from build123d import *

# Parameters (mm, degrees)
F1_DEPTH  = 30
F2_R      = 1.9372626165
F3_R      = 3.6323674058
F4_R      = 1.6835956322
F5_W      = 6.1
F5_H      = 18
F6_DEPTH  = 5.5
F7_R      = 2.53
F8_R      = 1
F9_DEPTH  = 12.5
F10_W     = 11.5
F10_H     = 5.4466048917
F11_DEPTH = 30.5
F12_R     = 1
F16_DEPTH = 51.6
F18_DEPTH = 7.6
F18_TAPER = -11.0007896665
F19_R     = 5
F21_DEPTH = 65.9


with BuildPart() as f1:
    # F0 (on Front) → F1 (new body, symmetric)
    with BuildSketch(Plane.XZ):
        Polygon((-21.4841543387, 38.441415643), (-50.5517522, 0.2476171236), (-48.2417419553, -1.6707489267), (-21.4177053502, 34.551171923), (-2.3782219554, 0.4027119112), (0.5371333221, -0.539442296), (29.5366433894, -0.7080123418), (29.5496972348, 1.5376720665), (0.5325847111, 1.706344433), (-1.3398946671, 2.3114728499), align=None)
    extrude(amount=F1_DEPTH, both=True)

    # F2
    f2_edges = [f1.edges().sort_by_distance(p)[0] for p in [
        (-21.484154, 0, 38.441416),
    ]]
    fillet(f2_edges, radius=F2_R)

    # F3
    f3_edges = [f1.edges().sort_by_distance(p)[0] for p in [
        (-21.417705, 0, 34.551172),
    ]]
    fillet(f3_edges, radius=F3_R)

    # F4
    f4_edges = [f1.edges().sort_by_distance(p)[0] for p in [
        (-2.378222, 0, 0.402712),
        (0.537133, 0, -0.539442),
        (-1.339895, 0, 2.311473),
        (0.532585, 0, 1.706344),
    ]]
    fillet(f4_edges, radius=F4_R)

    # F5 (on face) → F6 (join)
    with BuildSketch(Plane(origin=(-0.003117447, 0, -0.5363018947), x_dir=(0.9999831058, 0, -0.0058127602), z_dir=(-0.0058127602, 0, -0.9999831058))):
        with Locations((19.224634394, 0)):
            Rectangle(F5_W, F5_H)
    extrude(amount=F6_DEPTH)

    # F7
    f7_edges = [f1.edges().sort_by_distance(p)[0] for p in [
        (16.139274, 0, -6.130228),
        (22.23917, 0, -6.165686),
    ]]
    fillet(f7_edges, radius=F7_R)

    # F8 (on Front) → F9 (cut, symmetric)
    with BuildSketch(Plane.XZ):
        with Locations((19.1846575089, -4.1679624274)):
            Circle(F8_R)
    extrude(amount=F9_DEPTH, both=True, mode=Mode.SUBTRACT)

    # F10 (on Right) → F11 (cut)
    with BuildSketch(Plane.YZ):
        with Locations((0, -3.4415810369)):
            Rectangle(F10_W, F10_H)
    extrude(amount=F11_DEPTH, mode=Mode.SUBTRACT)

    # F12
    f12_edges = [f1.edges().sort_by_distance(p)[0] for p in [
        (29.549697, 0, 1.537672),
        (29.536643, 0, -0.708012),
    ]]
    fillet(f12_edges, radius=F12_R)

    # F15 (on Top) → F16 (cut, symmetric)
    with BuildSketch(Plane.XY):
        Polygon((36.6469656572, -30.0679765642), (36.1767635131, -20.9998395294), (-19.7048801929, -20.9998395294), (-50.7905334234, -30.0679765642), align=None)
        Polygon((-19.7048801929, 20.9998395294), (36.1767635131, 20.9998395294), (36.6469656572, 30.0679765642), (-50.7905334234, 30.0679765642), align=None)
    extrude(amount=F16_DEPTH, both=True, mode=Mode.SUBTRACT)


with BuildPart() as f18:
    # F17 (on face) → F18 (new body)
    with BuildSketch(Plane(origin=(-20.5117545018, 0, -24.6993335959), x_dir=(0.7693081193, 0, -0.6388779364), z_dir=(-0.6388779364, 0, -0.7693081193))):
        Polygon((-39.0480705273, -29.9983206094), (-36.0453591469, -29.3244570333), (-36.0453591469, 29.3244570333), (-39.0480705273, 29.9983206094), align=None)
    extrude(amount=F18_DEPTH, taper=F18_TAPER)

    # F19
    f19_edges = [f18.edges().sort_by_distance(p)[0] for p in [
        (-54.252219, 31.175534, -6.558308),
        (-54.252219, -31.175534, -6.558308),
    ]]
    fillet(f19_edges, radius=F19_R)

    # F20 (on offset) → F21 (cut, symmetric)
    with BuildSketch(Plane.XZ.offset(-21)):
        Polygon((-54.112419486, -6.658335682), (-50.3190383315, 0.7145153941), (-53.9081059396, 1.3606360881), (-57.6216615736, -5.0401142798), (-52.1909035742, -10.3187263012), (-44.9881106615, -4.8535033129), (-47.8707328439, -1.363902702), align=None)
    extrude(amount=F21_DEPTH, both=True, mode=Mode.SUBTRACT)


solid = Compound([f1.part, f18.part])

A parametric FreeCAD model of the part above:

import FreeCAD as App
import Part
import Sketcher

V = App.Vector
Q = App.Units.Quantity


def edges_at(feature, points):
    """Names of the edges that pass closest to the given points."""
    edges = feature.Shape.Edges
    near = lambda p: min(range(len(edges)), key=lambda i: edges[i].distToShape(Part.Vertex(*p))[0])
    return sorted({f"Edge{near(p) + 1}" for p in points})

doc = App.newDocument("Part")
body = doc.addObject("PartDesign::Body", "Body")

sketch1 = doc.addObject("Sketcher::SketchObject", "Sketch")
body.addObject(sketch1)
sketch1.AttachmentSupport = (doc.XZ_Plane, [""])
sketch1.MapMode = "FlatFace"
sketch1.addGeometry(Part.LineSegment(V(-21.5, 38.4, 0), V(-50.6, 0.2, 0)), False)
sketch1.addGeometry(Part.LineSegment(V(-50.6, 0.2, 0), V(-48.2, -1.7, 0)), False)
sketch1.addGeometry(Part.LineSegment(V(-48.2, -1.7, 0), V(-21.4, 34.6, 0)), False)
sketch1.addGeometry(Part.LineSegment(V(-21.4, 34.6, 0), V(-2.4, 0.4, 0)), False)
sketch1.addGeometry(Part.LineSegment(V(-2.4, 0.4, 0), V(0.5, -0.5, 0)), False)
sketch1.addGeometry(Part.LineSegment(V(0.5, -0.5, 0), V(29.5, -0.7, 0)), False)
sketch1.addGeometry(Part.LineSegment(V(29.5, -0.7, 0), V(29.5, 1.5, 0)), False)
sketch1.addGeometry(Part.LineSegment(V(29.5, 1.5, 0), V(0.5, 1.7, 0)), False)
sketch1.addGeometry(Part.LineSegment(V(0.5, 1.7, 0), V(-1.3, 2.3, 0)), False)
sketch1.addGeometry(Part.LineSegment(V(-1.3, 2.3, 0), V(-21.5, 38.4, 0)), False)
sketch1.addConstraint(Sketcher.Constraint("Coincident", 0, 2, 1, 1))
sketch1.addConstraint(Sketcher.Constraint("Coincident", 1, 2, 2, 1))
sketch1.addConstraint(Sketcher.Constraint("Coincident", 2, 2, 3, 1))
sketch1.addConstraint(Sketcher.Constraint("Coincident", 3, 2, 4, 1))
sketch1.addConstraint(Sketcher.Constraint("Coincident", 4, 2, 5, 1))
sketch1.addConstraint(Sketcher.Constraint("Coincident", 5, 2, 6, 1))
sketch1.addConstraint(Sketcher.Constraint("Coincident", 6, 2, 7, 1))
sketch1.addConstraint(Sketcher.Constraint("Coincident", 7, 2, 8, 1))
sketch1.addConstraint(Sketcher.Constraint("Coincident", 8, 2, 9, 1))
sketch1.addConstraint(Sketcher.Constraint("Coincident", 9, 2, 0, 1))
sketch1.addConstraint(Sketcher.Constraint("Perpendicular", 5, 6))
sketch1.addConstraint(Sketcher.Constraint("Perpendicular", 6, 7))
sketch1.addConstraint(Sketcher.Constraint("Parallel", 4, 8))
sketch1.addConstraint(Sketcher.Constraint("Parallel", 3, 9))
sketch1.addConstraint(Sketcher.Constraint("Distance", 5, Q("29 mm")))
sketch1.addConstraint(Sketcher.Constraint("DistanceY", 6, 2, 2, 2, Q("33.0135 mm")))
sketch1.addConstraint(Sketcher.Constraint("DistanceY", 6, 2, 8, 2, Q("0.773801 mm")))
sketch1.addConstraint(Sketcher.Constraint("Distance", 1, Q("3.002711 mm")))
sketch1.addConstraint(Sketcher.Constraint("Distance", 2, Q("45.072791 mm")))
sketch1.addConstraint(Sketcher.Constraint("Distance", 3, Q("39.097561 mm")))
sketch1.addConstraint(Sketcher.Constraint("Distance", 8, Q("1.967831 mm")))
sketch1.addConstraint(Sketcher.Constraint("DistanceX", 1, 2, -1, 1, Q("48.241742 mm")))
sketch1.addConstraint(Sketcher.Constraint("DistanceY", 1, 2, -1, 1, Q("1.670749 mm")))
sketch1.addConstraint(Sketcher.Constraint("DistanceY", -1, 1, 2, 2, Q("34.551172 mm")))
sketch1.addConstraint(Sketcher.Constraint("DistanceX", 3, 2, -1, 1, Q("2.378222 mm")))
sketch1.addConstraint(Sketcher.Constraint("DistanceX", 0, 2, 1, 2, Q("2.31001 mm")))
sketch1.addConstraint(Sketcher.Constraint("DistanceX", 2, 2, 4, 2, Q("21.954839 mm")))
sketch1.addConstraint(Sketcher.Constraint("DistanceY", 4, 2, 0, 2, Q("0.787059 mm")))
sketch1.addConstraint(Sketcher.Constraint("DistanceX", 7, 2, 4, 2, Q("0.004549 mm")))
sketch1.addConstraint(Sketcher.Constraint("DistanceX", 9, 2, 2, 2, Q("0.066449 mm")))
pad1 = doc.addObject("PartDesign::Pad", "Pad")
body.addObject(pad1)
pad1.Profile = sketch1
pad1.Length = 60
pad1.Midplane = True
doc.recompute()

fillet = doc.addObject("PartDesign::Fillet", "Fillet")
body.addObject(fillet)
fillet.Base = (pad1, edges_at(pad1, [(-21.484, 0, 38.441)]))
fillet.Radius = 1.937263
doc.recompute()

fillet2 = doc.addObject("PartDesign::Fillet", "Fillet001")
body.addObject(fillet2)
fillet2.Base = (fillet, edges_at(fillet, [(-21.418, 0, 34.551)]))
fillet2.Radius = 3.632367
doc.recompute()

fillet3 = doc.addObject("PartDesign::Fillet", "Fillet002")
body.addObject(fillet3)
fillet3.Base = (fillet2, edges_at(fillet2, [
    (-2.378, 0, 0.403),
    (0.537, 0, -0.539),
    (-1.34, 0, 2.311),
    (0.533, 0, 1.706),
]))
fillet3.Radius = 1.683596

sketch2 = doc.addObject("Sketcher::SketchObject", "Sketch001")
body.addObject(sketch2)
sketch2.Placement = App.Placement(V(-0.003117, 0, -0.536302), App.Rotation(V(0.999983106, 0, -0.00581276), V(0, -1, 0), V(-0.00581276, 0, -0.999983106), "ZXY"))
sketch2.addGeometry(Part.LineSegment(V(16, 9, 0), V(16, -9, 0)), False)
sketch2.addGeometry(Part.LineSegment(V(16, -9, 0), V(22, -9, 0)), False)
sketch2.addGeometry(Part.LineSegment(V(22, -9, 0), V(22, 9, 0)), False)
sketch2.addGeometry(Part.LineSegment(V(22, 9, 0), V(16, 9, 0)), False)
sketch2.addConstraint(Sketcher.Constraint("Coincident", 0, 2, 1, 1))
sketch2.addConstraint(Sketcher.Constraint("Coincident", 1, 2, 2, 1))
sketch2.addConstraint(Sketcher.Constraint("Coincident", 2, 2, 3, 1))
sketch2.addConstraint(Sketcher.Constraint("Coincident", 3, 2, 0, 1))
sketch2.addConstraint(Sketcher.Constraint("Vertical", 0))
sketch2.addConstraint(Sketcher.Constraint("Horizontal", 1))
sketch2.addConstraint(Sketcher.Constraint("Vertical", 2))
sketch2.addConstraint(Sketcher.Constraint("Horizontal", 3))
sketch2.addConstraint(Sketcher.Constraint("DistanceY", 0, 2, 0, 1, Q("18 mm")))
sketch2.addConstraint(Sketcher.Constraint("DistanceX", 1, 1, 1, 2, Q("6.1 mm")))
sketch2.addConstraint(Sketcher.Constraint("DistanceY", 0, 2, -1, 1, Q("9 mm")))
sketch2.addConstraint(Sketcher.Constraint("DistanceX", -1, 1, 0, 2, Q("16.174634 mm")))
pad2 = doc.addObject("PartDesign::Pad", "Pad001")
body.addObject(pad2)
pad2.Profile = sketch2
pad2.Length = 5.5
doc.recompute()

fillet4 = doc.addObject("PartDesign::Fillet", "Fillet003")
body.addObject(fillet4)
fillet4.Base = (pad2, edges_at(pad2, [(16.139, 0, -6.13), (22.239, 0, -6.166)]))
fillet4.Radius = 2.53

sketch3 = doc.addObject("Sketcher::SketchObject", "Sketch002")
body.addObject(sketch3)
sketch3.AttachmentSupport = (doc.XZ_Plane, [""])
sketch3.MapMode = "FlatFace"
sketch3.addGeometry(Part.Circle(V(19.2, -4.2, 0), V(0, 0, 1), 1), False)
sketch3.addConstraint(Sketcher.Constraint("Diameter", 0, Q("2 mm")))
sketch3.addConstraint(Sketcher.Constraint("DistanceX", -1, 1, 0, 3, Q("19.184658 mm")))
sketch3.addConstraint(Sketcher.Constraint("DistanceY", 0, 3, -1, 1, Q("4.167962 mm")))
pocket1 = doc.addObject("PartDesign::Pocket", "Pocket")
body.addObject(pocket1)
pocket1.Profile = sketch3
pocket1.Length = 25
pocket1.Midplane = True

sketch4 = doc.addObject("Sketcher::SketchObject", "Sketch003")
body.addObject(sketch4)
sketch4.AttachmentSupport = (doc.YZ_Plane, [""])
sketch4.MapMode = "FlatFace"
sketch4.addGeometry(Part.LineSegment(V(-6, -1, 0), V(-6, -6, 0)), False)
sketch4.addGeometry(Part.LineSegment(V(-6, -6, 0), V(6, -6, 0)), False)
sketch4.addGeometry(Part.LineSegment(V(6, -6, 0), V(6, -1, 0)), False)
sketch4.addGeometry(Part.LineSegment(V(6, -1, 0), V(-6, -1, 0)), False)
sketch4.addConstraint(Sketcher.Constraint("Coincident", 0, 2, 1, 1))
sketch4.addConstraint(Sketcher.Constraint("Coincident", 1, 2, 2, 1))
sketch4.addConstraint(Sketcher.Constraint("Coincident", 2, 2, 3, 1))
sketch4.addConstraint(Sketcher.Constraint("Coincident", 3, 2, 0, 1))
sketch4.addConstraint(Sketcher.Constraint("Vertical", 0))
sketch4.addConstraint(Sketcher.Constraint("Horizontal", 1))
sketch4.addConstraint(Sketcher.Constraint("Vertical", 2))
sketch4.addConstraint(Sketcher.Constraint("Horizontal", 3))
sketch4.addConstraint(Sketcher.Constraint("DistanceX", 1, 1, 1, 2, Q("11.5 mm")))
sketch4.addConstraint(Sketcher.Constraint("DistanceX", 0, 2, -1, 1, Q("5.75 mm")))
sketch4.addConstraint(Sketcher.Constraint("DistanceY", 0, 2, 0, 1, Q("5.446605 mm")))
sketch4.addConstraint(Sketcher.Constraint("DistanceY", 2, 2, -1, 1, Q("0.718279 mm")))
pocket2 = doc.addObject("PartDesign::Pocket", "Pocket001")
body.addObject(pocket2)
pocket2.Profile = sketch4
pocket2.Length = 30.5
pocket2.Reversed = True
doc.recompute()

fillet5 = doc.addObject("PartDesign::Fillet", "Fillet004")
body.addObject(fillet5)
fillet5.Base = (pocket2, edges_at(pocket2, [(29.55, 0, 1.538), (29.537, 0, -0.708)]))
fillet5.Radius = 1

sketch5 = doc.addObject("Sketcher::SketchObject", "Sketch004")
body.addObject(sketch5)
sketch5.AttachmentSupport = (doc.XY_Plane, [""])
sketch5.MapMode = "FlatFace"
sketch5.addGeometry(Part.LineSegment(V(37, -30, 0), V(36, -21, 0)), False)
sketch5.addGeometry(Part.LineSegment(V(36, -21, 0), V(-20, -21, 0)), False)
sketch5.addGeometry(Part.LineSegment(V(-20, -21, 0), V(-51, -30, 0)), False)
sketch5.addGeometry(Part.LineSegment(V(-51, -30, 0), V(37, -30, 0)), False)
sketch5.addGeometry(Part.LineSegment(V(-20, 21, 0), V(36, 21, 0)), False)
sketch5.addGeometry(Part.LineSegment(V(36, 21, 0), V(37, 30, 0)), False)
sketch5.addGeometry(Part.LineSegment(V(37, 30, 0), V(-51, 30, 0)), False)
sketch5.addGeometry(Part.LineSegment(V(-51, 30, 0), V(-20, 21, 0)), False)
sketch5.addConstraint(Sketcher.Constraint("Coincident", 0, 2, 1, 1))
sketch5.addConstraint(Sketcher.Constraint("Coincident", 1, 2, 2, 1))
sketch5.addConstraint(Sketcher.Constraint("Coincident", 2, 2, 3, 1))
sketch5.addConstraint(Sketcher.Constraint("Coincident", 3, 2, 0, 1))
sketch5.addConstraint(Sketcher.Constraint("Coincident", 4, 2, 5, 1))
sketch5.addConstraint(Sketcher.Constraint("Coincident", 5, 2, 6, 1))
sketch5.addConstraint(Sketcher.Constraint("Coincident", 6, 2, 7, 1))
sketch5.addConstraint(Sketcher.Constraint("Coincident", 7, 2, 4, 1))
sketch5.addConstraint(Sketcher.Constraint("Horizontal", 1))
sketch5.addConstraint(Sketcher.Constraint("Horizontal", 3))
sketch5.addConstraint(Sketcher.Constraint("Horizontal", 4))
sketch5.addConstraint(Sketcher.Constraint("Horizontal", 6))
sketch5.addConstraint(Sketcher.Constraint("Symmetric", 0, 2, 4, 2, -1))
sketch5.addConstraint(Sketcher.Constraint("Symmetric", 3, 2, 5, 2, -1))
sketch5.addConstraint(Sketcher.Constraint("Vertical", 2, 2, 6, 2))
sketch5.addConstraint(Sketcher.Constraint("Vertical", 1, 2, 7, 2))
sketch5.addConstraint(Sketcher.Constraint("DistanceX", 3, 1, 3, 2, Q("87.437499 mm")))
sketch5.addConstraint(Sketcher.Constraint("Distance", 0, Q("9.080319 mm")))
sketch5.addConstraint(Sketcher.Constraint("DistanceX", 1, 2, 1, 1, Q("55.881644 mm")))
sketch5.addConstraint(Sketcher.Constraint("DistanceY", 0, 2, -1, 1, Q("20.99984 mm")))
sketch5.addConstraint(Sketcher.Constraint("DistanceX", 1, 2, -1, 1, Q("19.70488 mm")))
sketch5.addConstraint(Sketcher.Constraint("Distance", 2, Q("32.381306 mm")))
pocket3 = doc.addObject("PartDesign::Pocket", "Pocket002")
body.addObject(pocket3)
pocket3.Profile = sketch5
pocket3.Length = 103.2
pocket3.Midplane = True
body2 = doc.addObject("PartDesign::Body", "Body001")

sketch6 = doc.addObject("Sketcher::SketchObject", "Sketch005")
body2.addObject(sketch6)
sketch6.Placement = App.Placement(V(-20.511755, 0, -24.699334), App.Rotation(V(0.769308119, 0, -0.638877936), V(0, -0.999999999, 0), V(-0.638877936, 0, -0.769308119), "ZXY"))
sketch6.addGeometry(Part.LineSegment(V(-39, -30, 0), V(-36, -29.3, 0)), False)
sketch6.addGeometry(Part.LineSegment(V(-36, -29.3, 0), V(-36, 29.3, 0)), False)
sketch6.addGeometry(Part.LineSegment(V(-36, 29.3, 0), V(-39, 30, 0)), False)
sketch6.addGeometry(Part.LineSegment(V(-39, 30, 0), V(-39, -30, 0)), False)
sketch6.addConstraint(Sketcher.Constraint("Coincident", 0, 2, 1, 1))
sketch6.addConstraint(Sketcher.Constraint("Coincident", 1, 2, 2, 1))
sketch6.addConstraint(Sketcher.Constraint("Coincident", 2, 2, 3, 1))
sketch6.addConstraint(Sketcher.Constraint("Coincident", 3, 2, 0, 1))
sketch6.addConstraint(Sketcher.Constraint("Vertical", 1))
sketch6.addConstraint(Sketcher.Constraint("Vertical", 3))
sketch6.addConstraint(Sketcher.Constraint("Equal", 0, 2))
sketch6.addConstraint(Sketcher.Constraint("DistanceY", 3, 2, 3, 1, Q("59.996641 mm")))
sketch6.addConstraint(Sketcher.Constraint("DistanceY", 1, 1, 1, 2, Q("58.648914 mm")))
sketch6.addConstraint(Sketcher.Constraint("DistanceX", 0, 2, -1, 1, Q("36.045359 mm")))
sketch6.addConstraint(Sketcher.Constraint("DistanceX", 2, 2, -1, 1, Q("39.04807 mm")))
sketch6.addConstraint(Sketcher.Constraint("DistanceY", -1, 1, 2, 2, Q("29.998321 mm")))
pad3 = doc.addObject("PartDesign::Pad", "Pad002")
body2.addObject(pad3)
pad3.Profile = sketch6
pad3.Length = 7.6
pad3.TaperAngle = 11.00079
doc.recompute()

fillet6 = doc.addObject("PartDesign::Fillet", "Fillet005")
body2.addObject(fillet6)
fillet6.Base = (pad3, edges_at(pad3, [(-54.252, 31.176, -6.558), (-54.252, -31.176, -6.558)]))
fillet6.Radius = 5

sketch7 = doc.addObject("Sketcher::SketchObject", "Sketch006")
body2.addObject(sketch7)
sketch7.AttachmentSupport = (doc.getObject("XZ_Plane001"), [""])
sketch7.MapMode = "FlatFace"
sketch7.AttachmentOffset = App.Placement(V(0, 0, -21), App.Rotation())
sketch7.addGeometry(Part.LineSegment(V(-54.1, -6.7, 0), V(-50.3, 0.7, 0)), False)
sketch7.addGeometry(Part.LineSegment(V(-50.3, 0.7, 0), V(-53.9, 1.4, 0)), False)
sketch7.addGeometry(Part.LineSegment(V(-53.9, 1.4, 0), V(-57.6, -5, 0)), False)
sketch7.addGeometry(Part.LineSegment(V(-57.6, -5, 0), V(-52.2, -10.3, 0)), False)
sketch7.addGeometry(Part.LineSegment(V(-52.2, -10.3, 0), V(-45, -4.9, 0)), False)
sketch7.addGeometry(Part.LineSegment(V(-45, -4.9, 0), V(-47.9, -1.4, 0)), False)
sketch7.addGeometry(Part.LineSegment(V(-47.9, -1.4, 0), V(-54.1, -6.7, 0)), False)
sketch7.addConstraint(Sketcher.Constraint("Coincident", 0, 2, 1, 1))
sketch7.addConstraint(Sketcher.Constraint("Coincident", 1, 2, 2, 1))
sketch7.addConstraint(Sketcher.Constraint("Coincident", 2, 2, 3, 1))
sketch7.addConstraint(Sketcher.Constraint("Coincident", 3, 2, 4, 1))
sketch7.addConstraint(Sketcher.Constraint("Coincident", 4, 2, 5, 1))
sketch7.addConstraint(Sketcher.Constraint("Coincident", 5, 2, 6, 1))
sketch7.addConstraint(Sketcher.Constraint("Coincident", 6, 2, 0, 1))
sketch7.addConstraint(Sketcher.Constraint("DistanceY", 4, 2, 5, 2, Q("3.489601 mm")))
sketch7.addConstraint(Sketcher.Constraint("Distance", 0, Q("8.291482 mm")))
sketch7.addConstraint(Sketcher.Constraint("Distance", 4, Q("9.041509 mm")))
sketch7.addConstraint(Sketcher.Constraint("Distance", 6, Q("8.184722 mm")))
sketch7.addConstraint(Sketcher.Constraint("DistanceX", 0, 2, -1, 1, Q("50.319038 mm")))
sketch7.addConstraint(Sketcher.Constraint("DistanceX", 2, 2, -1, 1, Q("57.621662 mm")))
sketch7.addConstraint(Sketcher.Constraint("DistanceX", 4, 2, -1, 1, Q("44.988111 mm")))
sketch7.addConstraint(Sketcher.Constraint("DistanceX", 6, 2, -1, 1, Q("54.112419 mm")))
sketch7.addConstraint(Sketcher.Constraint("DistanceY", 0, 2, 1, 2, Q("0.646121 mm")))
sketch7.addConstraint(Sketcher.Constraint("DistanceY", 2, 2, 1, 2, Q("6.40075 mm")))
sketch7.addConstraint(Sketcher.Constraint("DistanceX", 2, 2, 3, 2, Q("5.430758 mm")))
sketch7.addConstraint(Sketcher.Constraint("DistanceY", 3, 2, 0, 2, Q("11.033242 mm")))
sketch7.addConstraint(Sketcher.Constraint("Distance", 1, Q("3.646763 mm")))
sketch7.addConstraint(Sketcher.Constraint("DistanceY", -1, 1, 0, 2, Q("0.714515 mm")))
pocket4 = doc.addObject("PartDesign::Pocket", "Pocket003")
body2.addObject(pocket4)
pocket4.Profile = sketch7
pocket4.Length = 131.8
pocket4.Midplane = True

doc.recompute()
